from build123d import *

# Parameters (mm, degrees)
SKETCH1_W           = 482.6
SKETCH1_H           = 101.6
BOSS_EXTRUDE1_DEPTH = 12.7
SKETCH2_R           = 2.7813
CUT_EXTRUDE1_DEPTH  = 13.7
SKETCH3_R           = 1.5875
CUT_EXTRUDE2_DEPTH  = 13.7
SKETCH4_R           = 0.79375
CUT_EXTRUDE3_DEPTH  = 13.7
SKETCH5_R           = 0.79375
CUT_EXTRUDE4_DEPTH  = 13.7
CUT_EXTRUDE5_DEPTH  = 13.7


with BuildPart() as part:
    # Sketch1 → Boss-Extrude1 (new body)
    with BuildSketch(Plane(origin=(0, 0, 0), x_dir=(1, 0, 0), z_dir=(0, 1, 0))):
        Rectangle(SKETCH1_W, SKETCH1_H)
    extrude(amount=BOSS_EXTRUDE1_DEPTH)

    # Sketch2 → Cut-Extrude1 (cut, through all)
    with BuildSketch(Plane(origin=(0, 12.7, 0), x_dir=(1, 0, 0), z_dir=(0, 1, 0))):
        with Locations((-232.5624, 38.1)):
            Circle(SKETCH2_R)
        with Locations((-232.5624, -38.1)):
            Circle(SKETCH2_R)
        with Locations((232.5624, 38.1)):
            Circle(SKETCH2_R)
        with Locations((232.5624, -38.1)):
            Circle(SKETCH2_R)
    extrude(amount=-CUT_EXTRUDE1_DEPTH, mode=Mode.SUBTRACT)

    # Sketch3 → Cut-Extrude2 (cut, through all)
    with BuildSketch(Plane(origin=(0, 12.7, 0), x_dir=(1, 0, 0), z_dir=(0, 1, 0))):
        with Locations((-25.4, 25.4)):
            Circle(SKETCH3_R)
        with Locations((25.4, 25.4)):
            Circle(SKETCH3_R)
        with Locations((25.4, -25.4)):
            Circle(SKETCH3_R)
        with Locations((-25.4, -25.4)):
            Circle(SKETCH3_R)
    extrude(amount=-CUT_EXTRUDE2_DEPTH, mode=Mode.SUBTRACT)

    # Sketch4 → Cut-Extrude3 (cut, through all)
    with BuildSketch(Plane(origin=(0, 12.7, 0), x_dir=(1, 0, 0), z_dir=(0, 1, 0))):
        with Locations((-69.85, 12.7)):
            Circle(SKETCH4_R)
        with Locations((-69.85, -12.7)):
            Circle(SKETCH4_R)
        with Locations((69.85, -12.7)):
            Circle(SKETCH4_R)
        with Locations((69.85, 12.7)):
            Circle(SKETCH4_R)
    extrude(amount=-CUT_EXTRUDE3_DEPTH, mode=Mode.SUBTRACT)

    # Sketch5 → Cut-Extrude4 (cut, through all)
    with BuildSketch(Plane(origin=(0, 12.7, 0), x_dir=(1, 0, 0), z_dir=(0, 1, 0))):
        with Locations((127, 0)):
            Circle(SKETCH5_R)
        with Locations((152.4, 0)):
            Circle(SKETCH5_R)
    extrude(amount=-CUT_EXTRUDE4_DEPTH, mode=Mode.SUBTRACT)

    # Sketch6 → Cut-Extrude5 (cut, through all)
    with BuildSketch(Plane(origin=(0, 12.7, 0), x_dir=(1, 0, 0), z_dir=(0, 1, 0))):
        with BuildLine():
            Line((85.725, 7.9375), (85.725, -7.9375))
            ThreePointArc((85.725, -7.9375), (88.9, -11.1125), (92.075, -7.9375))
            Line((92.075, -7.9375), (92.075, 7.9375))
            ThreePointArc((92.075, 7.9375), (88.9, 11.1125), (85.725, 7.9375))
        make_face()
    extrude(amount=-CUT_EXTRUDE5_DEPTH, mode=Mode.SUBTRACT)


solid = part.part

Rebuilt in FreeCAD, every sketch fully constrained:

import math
import FreeCAD as App
import Part
import Sketcher
Q = App.Units.Quantity


def add_polygon(sketch, points):
    """Adds a closed chain of lines whose ends are joined by coincident constraints."""
    first, n = sketch.GeometryCount, len(points)
    for a, b in zip(points, points[1:] + points[:1]):
        sketch.addGeometry(Part.LineSegment(App.Vector(*a, 0), App.Vector(*b, 0)), False)
    for i in range(n):
        sketch.addConstraint(Sketcher.Constraint("Coincident", first + i, 2, first + (i + 1) % n, 1))

doc = App.newDocument("Part")
body = doc.addObject("PartDesign::Body", "Body")

sketch1 = body.newObject("Sketcher::SketchObject", "Sketch")
sketch1.AttachmentSupport = (doc.getObject("XZ_Plane"), [""])
sketch1.MapMode = "FlatFace"
add_polygon(sketch1, [(-241, -51), (-241, 51), (241, 51), (241, -51)])
sketch1.addConstraint(Sketcher.Constraint("Vertical", 0))
sketch1.addConstraint(Sketcher.Constraint("Horizontal", 1))
sketch1.addConstraint(Sketcher.Constraint("Vertical", 2))
sketch1.addConstraint(Sketcher.Constraint("Horizontal", 3))
sketch1.addConstraint(Sketcher.Constraint("Symmetric", 0, 2, 2, 2, -1, 1))
sketch1.addConstraint(Sketcher.Constraint("DistanceX", 1, 1, 1, 2, Q("19 in")))
sketch1.addConstraint(Sketcher.Constraint("DistanceY", 0, 1, 0, 2, Q("4 in")))
pad1 = body.newObject("PartDesign::Pad", "Pad")
pad1.Profile = sketch1
pad1.Length = Q("0.5 in")
pad1.Reversed = True

sketch2 = body.newObject("Sketcher::SketchObject", "Sketch001")
sketch2.AttachmentSupport = (doc.getObject("XZ_Plane"), [""])
sketch2.MapMode = "FlatFace"
sketch2.AttachmentOffset = App.Placement(App.Vector(0, 0, -0.5 * 25.4), App.Rotation())
sketch2.addGeometry(Part.Circle(App.Vector(-232.6, -38.1, 0), App.Vector(0, 0, 1), 2.8), False)
sketch2.addGeometry(Part.Circle(App.Vector(-232.6, 38.1, 0), App.Vector(0, 0, 1), 2.8), False)
sketch2.addGeometry(Part.Circle(App.Vector(232.6, -38.1, 0), App.Vector(0, 0, 1), 2.8), False)
sketch2.addGeometry(Part.Circle(App.Vector(232.6, 38.1, 0), App.Vector(0, 0, 1), 2.8), False)
sketch2.addConstraint(Sketcher.Constraint("Equal", 0, 1))
sketch2.addConstraint(Sketcher.Constraint("Equal", 1, 2))
sketch2.addConstraint(Sketcher.Constraint("Equal", 2, 3))
sketch2.addConstraint(Sketcher.Constraint("Symmetric", 1, 3, 2, 3, -1, 1))
sketch2.addConstraint(Sketcher.Constraint("Symmetric", 0, 3, 3, 3, -1, 1))
sketch2.addConstraint(Sketcher.Constraint("Symmetric", 0, 3, 2, 3, -2))
sketch2.addConstraint(Sketcher.Constraint("Diameter", 0, Q("0.219 in")))
sketch2.addConstraint(Sketcher.Constraint("DistanceY", 0, 3, 1, 3, Q("3 in")))
sketch2.addConstraint(Sketcher.Constraint("DistanceX", 0, 3, -1, 1, Q("9.156 in")))
pocket1 = body.newObject("PartDesign::Pocket", "Pocket")
pocket1.Profile = sketch2
pocket1.Type = "ThroughAll"
pocket1.Reversed = True

sketch3 = body.newObject("Sketcher::SketchObject", "Sketch002")
sketch3.AttachmentSupport = (doc.getObject("XZ_Plane"), [""])
sketch3.MapMode = "FlatFace"
sketch3.AttachmentOffset = App.Placement(App.Vector(0, 0, -0.5 * 25.4), App.Rotation())
sketch3.addGeometry(Part.Circle(App.Vector(-25.4, -25.4, 0), App.Vector(0, 0, 1), 1.6), False)
sketch3.addGeometry(Part.Circle(App.Vector(25.4, -25.4, 0), App.Vector(0, 0, 1), 1.6), False)
sketch3.addGeometry(Part.Circle(App.Vector(25.4, 25.4, 0), App.Vector(0, 0, 1), 1.6), False)
sketch3.addGeometry(Part.Circle(App.Vector(-25.4, 25.4, 0), App.Vector(0, 0, 1), 1.6), False)
sketch3.addConstraint(Sketcher.Constraint("Equal", 0, 1))
sketch3.addConstraint(Sketcher.Constraint("Equal", 1, 2))
sketch3.addConstraint(Sketcher.Constraint("Equal", 2, 3))
sketch3.addConstraint(Sketcher.Constraint("Symmetric", 0, 3, 2, 3, -1, 1))
sketch3.addConstraint(Sketcher.Constraint("Symmetric", 1, 3, 3, 3, -1, 1))
sketch3.addConstraint(Sketcher.Constraint("Symmetric", 0, 3, 1, 3, -2))
sketch3.addConstraint(Sketcher.Constraint("Diameter", 0, Q("0.125 in")))
sketch3.addConstraint(Sketcher.Constraint("DistanceX", 0, 3, -1, 1, Q("1 in")))
sketch3.addConstraint(Sketcher.Constraint("DistanceY", 0, 3, -1, 1, Q("1 in")))
pocket2 = body.newObject("PartDesign::Pocket", "Pocket001")
pocket2.Profile = sketch3
pocket2.Type = "ThroughAll"
pocket2.Reversed = True

sketch4 = body.newObject("Sketcher::SketchObject", "Sketch003")
sketch4.AttachmentSupport = (doc.getObject("XZ_Plane"), [""])
sketch4.MapMode = "FlatFace"
sketch4.AttachmentOffset = App.Placement(App.Vector(0, 0, -0.5 * 25.4), App.Rotation())
sketch4.addGeometry(Part.Circle(App.Vector(-69.8, -12.7, 0), App.Vector(0, 0, 1), 0.8), False)
sketch4.addGeometry(Part.Circle(App.Vector(-69.8, 12.7, 0), App.Vector(0, 0, 1), 0.8), False)
sketch4.addGeometry(Part.Circle(App.Vector(69.8, 12.7, 0), App.Vector(0, 0, 1), 0.8), False)
sketch4.addGeometry(Part.Circle(App.Vector(69.8, -12.7, 0), App.Vector(0, 0, 1), 0.8), False)
sketch4.addConstraint(Sketcher.Constraint("Equal", 0, 1))
sketch4.addConstraint(Sketcher.Constraint("Equal", 1, 2))
sketch4.addConstraint(Sketcher.Constraint("Equal", 2, 3))
sketch4.addConstraint(Sketcher.Constraint("Symmetric", 0, 3, 2, 3, -1, 1))
sketch4.addConstraint(Sketcher.Constraint("Symmetric", 1, 3, 3, 3, -1, 1))
sketch4.addConstraint(Sketcher.Constraint("Symmetric", 1, 3, 2, 3, -2))
sketch4.addConstraint(Sketcher.Constraint("Diameter", 0, Q("0.0625 in")))
sketch4.addConstraint(Sketcher.Constraint("DistanceY", 0, 3, 1, 3, Q("1 in")))
sketch4.addConstraint(Sketcher.Constraint("DistanceX", 1, 3, 2, 3, Q("5.5 in")))
pocket3 = body.newObject("PartDesign::Pocket", "Pocket002")
pocket3.Profile = sketch4
pocket3.Type = "ThroughAll"
pocket3.Reversed = True

sketch5 = body.newObject("Sketcher::SketchObject", "Sketch004")
sketch5.AttachmentSupport = (doc.getObject("XZ_Plane"), [""])
sketch5.MapMode = "FlatFace"
sketch5.AttachmentOffset = App.Placement(App.Vector(0, 0, -0.5 * 25.4), App.Rotation())
sketch5.addGeometry(Part.Circle(App.Vector(127, 0, 0), App.Vector(0, 0, 1), 0.8), False)
sketch5.addGeometry(Part.Circle(App.Vector(152.4, 0, 0), App.Vector(0, 0, 1), 0.8), False)
sketch5.addConstraint(Sketcher.Constraint("Equal", 0, 1))
sketch5.addConstraint(Sketcher.Constraint("PointOnObject", 0, 3, -1))
sketch5.addConstraint(Sketcher.Constraint("PointOnObject", 1, 3, -1))
sketch5.addConstraint(Sketcher.Constraint("Diameter", 0, Q("0.0625 in")))
sketch5.addConstraint(Sketcher.Constraint("DistanceX", -1, 1, 0, 3, Q("5 in")))
sketch5.addConstraint(Sketcher.Constraint("DistanceX", -1, 1, 1, 3, Q("6 in")))
pocket4 = body.newObject("PartDesign::Pocket", "Pocket003")
pocket4.Profile = sketch5
pocket4.Type = "ThroughAll"
pocket4.Reversed = True

sketch6 = body.newObject("Sketcher::SketchObject", "Sketch005")
sketch6.AttachmentSupport = (doc.getObject("XZ_Plane"), [""])
sketch6.MapMode = "FlatFace"
sketch6.AttachmentOffset = App.Placement(App.Vector(0, 0, -0.5 * 25.4), App.Rotation())
sketch6.addGeometry(Part.LineSegment(App.Vector(85.7, -7.9, 0), App.Vector(85.7, 7.9, 0)), False)
sketch6.addGeometry(Part.ArcOfCircle(Part.Circle(App.Vector(88.9, 7.9, 0), App.Vector(0, 0, 1), 3.2), math.radians(0), math.radians(180)), False)
sketch6.addGeometry(Part.LineSegment(App.Vector(92.1, 7.9, 0), App.Vector(92.1, -7.9, 0)), False)
sketch6.addGeometry(Part.ArcOfCircle(Part.Circle(App.Vector(88.9, -7.9, 0), App.Vector(0, 0, 1), 3.2), math.radians(180), math.radians(360)), False)
sketch6.addConstraint(Sketcher.Constraint("Tangent", 0, 2, 1, 2))
sketch6.addConstraint(Sketcher.Constraint("Tangent", 1, 1, 2, 1))
sketch6.addConstraint(Sketcher.Constraint("Tangent", 2, 2, 3, 2))
sketch6.addConstraint(Sketcher.Constraint("Tangent", 3, 1, 0, 1))
sketch6.addConstraint(Sketcher.Constraint("Vertical", 0))
sketch6.addConstraint(Sketcher.Constraint("Vertical", 2))
sketch6.addConstraint(Sketcher.Constraint("Radius", 1, Q("0.125 in")))
sketch6.addConstraint(Sketcher.Constraint("DistanceX", -1, 1, 1, 3, Q("3.5 in")))
sketch6.addConstraint(Sketcher.Constraint("DistanceY", 0, 1, 0, 2, Q("0.625 in")))
sketch6.addConstraint(Sketcher.Constraint("DistanceY", -1, 1, 1, 3, Q("0.3125 in")))
pocket5 = body.newObject("PartDesign::Pocket", "Pocket004")
pocket5.Profile = sketch6
pocket5.Type = "ThroughAll"
pocket5.Reversed = True

doc.recompute()
